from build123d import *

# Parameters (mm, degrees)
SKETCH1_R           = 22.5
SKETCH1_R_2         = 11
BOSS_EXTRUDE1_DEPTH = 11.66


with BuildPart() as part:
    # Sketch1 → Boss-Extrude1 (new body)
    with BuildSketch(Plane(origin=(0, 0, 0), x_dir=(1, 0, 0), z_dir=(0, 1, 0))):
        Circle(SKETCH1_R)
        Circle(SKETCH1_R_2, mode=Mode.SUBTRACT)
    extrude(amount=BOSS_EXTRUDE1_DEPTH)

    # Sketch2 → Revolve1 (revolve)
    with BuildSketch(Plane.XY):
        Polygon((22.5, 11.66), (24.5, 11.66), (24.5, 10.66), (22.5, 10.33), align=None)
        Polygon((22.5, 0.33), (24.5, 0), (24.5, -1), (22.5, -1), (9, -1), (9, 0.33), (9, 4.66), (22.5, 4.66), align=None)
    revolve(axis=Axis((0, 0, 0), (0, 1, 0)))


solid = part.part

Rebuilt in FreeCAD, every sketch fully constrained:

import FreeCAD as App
import Part
import Sketcher
Q = App.Units.Quantity

doc = App.newDocument("Part")
body = doc.addObject("PartDesign::Body", "Body")

# Sketch on XZ plane
sketch1 = doc.addObject("Sketcher::SketchObject", "Sketch")
body.addObject(sketch1)
sketch1.AttachmentSupport = (doc.XZ_Plane, [""])
sketch1.MapMode = "FlatFace"
sketch1.addGeometry([
    Part.Circle(App.Vector(0, 0, 0), App.Vector(0, 0, 1), 22),
    Part.Circle(App.Vector(0, 0, 0), App.Vector(0, 0, 1), 11),
], False)
sketch1.addConstraint([
    Sketcher.Constraint("Coincident", 0, 3, -1, 1),
    Sketcher.Constraint("Coincident", 1, 3, -1, 1),
    Sketcher.Constraint("Diameter", 0, Q("45 mm")),
    Sketcher.Constraint("Diameter", 1, Q("22 mm")),
])
pad1 = doc.addObject("PartDesign::Pad", "Pad")
body.addObject(pad1)
pad1.Profile = sketch1
pad1.Length = 11.66
pad1.Reversed = True

# Sketch on XY plane
sketch2 = doc.addObject("Sketcher::SketchObject", "Sketch001")
body.addObject(sketch2)
sketch2.AttachmentSupport = (doc.XY_Plane, [""])
sketch2.MapMode = "FlatFace"
sketch2.addGeometry([
    Part.LineSegment(App.Vector(24.5, 11.7, 0), App.Vector(22.5, 11.7, 0)),  # 0
    Part.LineSegment(App.Vector(22.5, 11.7, 0), App.Vector(22.5, 10.3, 0)),  # 1
    Part.LineSegment(App.Vector(22.5, 10.3, 0), App.Vector(24.5, 10.7, 0)),  # 2
    Part.LineSegment(App.Vector(24.5, 10.7, 0), App.Vector(24.5, 11.7, 0)),  # 3
    Part.LineSegment(App.Vector(24.5, 0, 0), App.Vector(22.5, 0.3, 0)),  # 4
    Part.LineSegment(App.Vector(22.5, 0.3, 0), App.Vector(22.5, 4.7, 0)),  # 5
    Part.LineSegment(App.Vector(22.5, 4.7, 0), App.Vector(9, 4.7, 0)),  # 6
    Part.LineSegment(App.Vector(9, 4.7, 0), App.Vector(9, -1, 0)),  # 7
    Part.LineSegment(App.Vector(9, -1, 0), App.Vector(24.5, -1, 0)),  # 8
    Part.LineSegment(App.Vector(24.5, -1, 0), App.Vector(24.5, 0, 0)),  # 9
], False)
sketch2.addConstraint([
    Sketcher.Constraint("Coincident", 0, 2, 1, 1),
    Sketcher.Constraint("Coincident", 1, 2, 2, 1),
    Sketcher.Constraint("Coincident", 2, 2, 3, 1),
    Sketcher.Constraint("Coincident", 3, 2, 0, 1),
    Sketcher.Constraint("Coincident", 4, 2, 5, 1),
    Sketcher.Constraint("Coincident", 5, 2, 6, 1),
    Sketcher.Constraint("Coincident", 6, 2, 7, 1),
    Sketcher.Constraint("Coincident", 7, 2, 8, 1),
    Sketcher.Constraint("Coincident", 8, 2, 9, 1),
    Sketcher.Constraint("Coincident", 9, 2, 4, 1),
    Sketcher.Constraint("Horizontal", 0),
    Sketcher.Constraint("Vertical", 1),
    Sketcher.Constraint("Vertical", 3),
    Sketcher.Constraint("Vertical", 5),
    Sketcher.Constraint("Horizontal", 6),
    Sketcher.Constraint("Vertical", 7),
    Sketcher.Constraint("Horizontal", 8),
    Sketcher.Constraint("Vertical", 9),
    Sketcher.Constraint("PointOnObject", 9, 2, -1),
    Sketcher.Constraint("Vertical", 1, 2, 4, 2),
    Sketcher.Constraint("Vertical", 3, 2, 8, 2),
    Sketcher.Constraint("Equal", 3, 9),
    Sketcher.Constraint("Equal", 2, 4),
    Sketcher.Constraint("DistanceX", 0, 2, 0, 1, Q("2 mm")),
    Sketcher.Constraint("DistanceY", 3, 1, 3, 2, Q("1 mm")),
    Sketcher.Constraint("DistanceX", 6, 2, 6, 1, Q("13.5 mm")),
    Sketcher.Constraint("DistanceX", -1, 1, 6, 2, Q("9 mm")),
    Sketcher.Constraint("DistanceY", 4, 2, 1, 2, Q("10 mm")),
    Sketcher.Constraint("DistanceY", 5, 2, 2, 2, Q("6 mm")),
    Sketcher.Constraint("DistanceY", 1, 2, 1, 1, Q("1.33 mm")),
])
revolution = doc.addObject("PartDesign::Revolution", "Revolution")
body.addObject(revolution)
revolution.Profile = sketch2
revolution.ReferenceAxis = (sketch2, ["V_Axis"])
revolution.Angle = 360

doc.recompute()
